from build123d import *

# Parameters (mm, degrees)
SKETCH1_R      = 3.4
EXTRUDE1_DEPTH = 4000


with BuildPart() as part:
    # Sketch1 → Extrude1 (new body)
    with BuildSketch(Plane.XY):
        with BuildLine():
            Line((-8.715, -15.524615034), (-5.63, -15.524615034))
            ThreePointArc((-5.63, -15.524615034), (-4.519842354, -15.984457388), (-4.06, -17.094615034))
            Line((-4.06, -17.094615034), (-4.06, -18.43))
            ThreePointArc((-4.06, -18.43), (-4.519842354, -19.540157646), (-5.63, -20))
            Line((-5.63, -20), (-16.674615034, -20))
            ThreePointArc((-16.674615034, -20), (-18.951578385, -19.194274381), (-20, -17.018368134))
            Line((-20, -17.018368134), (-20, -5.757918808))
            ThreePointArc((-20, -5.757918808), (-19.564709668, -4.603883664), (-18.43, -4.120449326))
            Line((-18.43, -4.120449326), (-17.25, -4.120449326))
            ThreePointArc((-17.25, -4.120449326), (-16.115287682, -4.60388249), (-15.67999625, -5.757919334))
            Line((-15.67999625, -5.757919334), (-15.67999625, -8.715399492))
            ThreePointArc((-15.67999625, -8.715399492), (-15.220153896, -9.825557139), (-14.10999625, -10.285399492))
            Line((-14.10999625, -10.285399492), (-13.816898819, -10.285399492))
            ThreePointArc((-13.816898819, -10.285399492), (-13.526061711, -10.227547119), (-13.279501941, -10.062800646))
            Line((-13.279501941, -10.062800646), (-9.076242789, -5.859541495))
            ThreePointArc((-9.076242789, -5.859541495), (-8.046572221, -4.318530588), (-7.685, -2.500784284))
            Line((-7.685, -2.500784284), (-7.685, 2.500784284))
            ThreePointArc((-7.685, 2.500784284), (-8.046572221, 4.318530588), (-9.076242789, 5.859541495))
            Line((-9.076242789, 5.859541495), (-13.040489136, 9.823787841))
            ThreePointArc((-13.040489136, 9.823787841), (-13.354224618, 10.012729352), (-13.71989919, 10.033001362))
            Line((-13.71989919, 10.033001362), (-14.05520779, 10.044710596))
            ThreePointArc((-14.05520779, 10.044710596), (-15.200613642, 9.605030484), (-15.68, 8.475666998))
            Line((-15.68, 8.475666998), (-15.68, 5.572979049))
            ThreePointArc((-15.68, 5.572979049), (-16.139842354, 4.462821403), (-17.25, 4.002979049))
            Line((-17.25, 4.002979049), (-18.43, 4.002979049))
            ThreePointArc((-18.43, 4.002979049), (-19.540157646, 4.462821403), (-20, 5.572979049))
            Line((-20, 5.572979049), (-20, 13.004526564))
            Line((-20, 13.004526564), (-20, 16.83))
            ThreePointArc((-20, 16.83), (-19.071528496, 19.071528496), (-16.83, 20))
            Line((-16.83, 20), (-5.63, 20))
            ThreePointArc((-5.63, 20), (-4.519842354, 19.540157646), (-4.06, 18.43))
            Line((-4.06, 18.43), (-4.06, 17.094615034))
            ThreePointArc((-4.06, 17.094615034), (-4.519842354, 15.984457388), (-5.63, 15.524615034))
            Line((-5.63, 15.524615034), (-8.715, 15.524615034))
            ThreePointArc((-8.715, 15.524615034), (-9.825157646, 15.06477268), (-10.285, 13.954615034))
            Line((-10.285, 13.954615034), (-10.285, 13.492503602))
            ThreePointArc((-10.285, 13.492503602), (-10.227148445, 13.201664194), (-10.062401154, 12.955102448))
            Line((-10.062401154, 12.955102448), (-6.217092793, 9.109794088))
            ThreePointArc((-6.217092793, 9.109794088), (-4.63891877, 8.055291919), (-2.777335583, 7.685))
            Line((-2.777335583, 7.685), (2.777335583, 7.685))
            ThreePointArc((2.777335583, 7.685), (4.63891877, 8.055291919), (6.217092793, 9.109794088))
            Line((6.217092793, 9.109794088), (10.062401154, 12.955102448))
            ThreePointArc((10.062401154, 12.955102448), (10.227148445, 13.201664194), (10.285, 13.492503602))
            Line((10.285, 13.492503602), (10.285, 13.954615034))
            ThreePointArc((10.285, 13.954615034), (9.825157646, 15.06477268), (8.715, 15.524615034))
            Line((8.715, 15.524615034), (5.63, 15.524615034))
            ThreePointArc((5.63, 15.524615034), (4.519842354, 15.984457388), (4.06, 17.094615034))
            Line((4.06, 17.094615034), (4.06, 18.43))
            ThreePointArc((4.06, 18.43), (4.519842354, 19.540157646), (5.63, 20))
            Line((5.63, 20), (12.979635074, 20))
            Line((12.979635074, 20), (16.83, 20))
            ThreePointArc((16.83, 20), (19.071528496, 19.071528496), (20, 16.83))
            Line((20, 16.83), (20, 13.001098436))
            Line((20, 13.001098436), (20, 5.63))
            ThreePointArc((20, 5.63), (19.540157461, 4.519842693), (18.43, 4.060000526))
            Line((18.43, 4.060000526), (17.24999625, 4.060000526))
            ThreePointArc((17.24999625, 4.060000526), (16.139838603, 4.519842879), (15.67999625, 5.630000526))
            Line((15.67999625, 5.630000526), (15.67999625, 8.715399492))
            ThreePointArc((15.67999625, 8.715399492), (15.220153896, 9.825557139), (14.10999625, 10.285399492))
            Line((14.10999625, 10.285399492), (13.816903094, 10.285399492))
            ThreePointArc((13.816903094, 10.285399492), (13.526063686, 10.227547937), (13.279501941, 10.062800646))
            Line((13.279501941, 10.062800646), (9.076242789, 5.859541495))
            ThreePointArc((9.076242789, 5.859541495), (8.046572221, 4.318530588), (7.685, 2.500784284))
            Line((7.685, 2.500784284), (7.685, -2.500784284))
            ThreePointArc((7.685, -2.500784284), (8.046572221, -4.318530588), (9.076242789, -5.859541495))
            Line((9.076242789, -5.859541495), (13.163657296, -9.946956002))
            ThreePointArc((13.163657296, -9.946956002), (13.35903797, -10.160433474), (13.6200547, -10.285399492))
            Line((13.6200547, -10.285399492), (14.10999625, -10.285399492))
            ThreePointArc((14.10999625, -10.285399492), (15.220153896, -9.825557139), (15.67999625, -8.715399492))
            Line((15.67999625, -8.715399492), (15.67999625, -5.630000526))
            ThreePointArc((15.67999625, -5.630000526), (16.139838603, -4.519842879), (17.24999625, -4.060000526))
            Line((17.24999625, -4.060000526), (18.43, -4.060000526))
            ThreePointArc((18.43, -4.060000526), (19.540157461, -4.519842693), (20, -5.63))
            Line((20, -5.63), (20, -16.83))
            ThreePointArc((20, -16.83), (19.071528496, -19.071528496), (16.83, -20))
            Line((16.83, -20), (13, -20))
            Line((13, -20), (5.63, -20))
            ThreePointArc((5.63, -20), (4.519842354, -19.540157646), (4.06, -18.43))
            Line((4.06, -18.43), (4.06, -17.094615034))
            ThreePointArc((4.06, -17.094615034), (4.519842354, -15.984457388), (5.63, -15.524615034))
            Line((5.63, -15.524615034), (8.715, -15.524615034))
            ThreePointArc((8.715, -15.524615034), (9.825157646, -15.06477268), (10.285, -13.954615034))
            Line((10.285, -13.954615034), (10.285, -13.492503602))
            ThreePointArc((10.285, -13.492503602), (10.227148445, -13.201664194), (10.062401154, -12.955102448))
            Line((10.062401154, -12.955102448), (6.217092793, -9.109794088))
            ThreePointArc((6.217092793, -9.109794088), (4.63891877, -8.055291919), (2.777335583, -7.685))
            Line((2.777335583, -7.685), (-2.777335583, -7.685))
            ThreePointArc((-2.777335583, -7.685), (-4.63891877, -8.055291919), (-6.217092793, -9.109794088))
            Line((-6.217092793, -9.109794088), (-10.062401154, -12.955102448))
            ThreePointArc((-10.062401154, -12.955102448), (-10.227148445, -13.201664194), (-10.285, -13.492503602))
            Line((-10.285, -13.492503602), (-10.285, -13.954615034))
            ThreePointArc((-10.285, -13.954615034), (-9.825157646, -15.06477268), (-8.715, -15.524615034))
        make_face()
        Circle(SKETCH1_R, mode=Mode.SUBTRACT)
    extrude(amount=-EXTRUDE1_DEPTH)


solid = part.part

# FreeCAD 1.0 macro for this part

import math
import FreeCAD as App
import Part
import Sketcher

V = App.Vector
Q = App.Units.Quantity

doc = App.newDocument("Part")
params = doc.addObject("Spreadsheet::Sheet", "Params")
for row, (alias, value) in enumerate([
    ("sketch1_diameter", "6.8 mm"),
    ("sketch1_radius", "1.57 mm"),
    ("sketch1_radius2", "0.76 mm"),
    ("sketch1_radius3", "3.17 mm"),
    ("sketch1_radius4", "4.75 mm"),
    ("pad1_length", "4000 mm"),
], start=1):
    params.set(f"A{row}", alias)
    params.set(f"B{row}", "=" + value)
    params.setAlias(f"B{row}", alias)

body = doc.addObject("PartDesign::Body", "Body")

# Sketch on XY plane
sketch1 = body.newObject("Sketcher::SketchObject", "Sketch")
sketch1.AttachmentSupport = (doc.getObject("XY_Plane"), [""])
sketch1.MapMode = "FlatFace"
sketch1.addGeometry(Part.LineSegment(V(-5.63, -15.524615, 0), V(-8.715, -15.524615, 0)), False)
sketch1.addGeometry(Part.ArcOfCircle(Part.Circle(V(-8.715, -13.954615, 0), V(0, 0, 1), 1.57), math.radians(-180), math.radians(-90)), False)
sketch1.addGeometry(Part.LineSegment(V(-10.285, -13.954615, 0), V(-10.285, -13.492504, 0)), False)
sketch1.addGeometry(Part.ArcOfCircle(Part.Circle(V(-9.525, -13.492504, 0), V(0, 0, 1), 0.76), math.radians(135), math.radians(180)), False)
sketch1.addGeometry(Part.LineSegment(V(-10.062401, -12.955102, 0), V(-6.217093, -9.109794, 0)), False)
sketch1.addGeometry(Part.ArcOfCircle(Part.Circle(V(-2.777336, -12.549551, 0), V(0, 0, 1), 4.864551), math.radians(90), math.radians(135)), False)
sketch1.addGeometry(Part.LineSegment(V(-2.777336, -7.685, 0), V(2.777336, -7.685, 0)), False)
sketch1.addGeometry(Part.ArcOfCircle(Part.Circle(V(2.777336, -12.549551, 0), V(0, 0, 1), 4.864551), math.radians(45), math.radians(90)), False)
sketch1.addGeometry(Part.LineSegment(V(6.217093, -9.109794, 0), V(10.062401, -12.955102, 0)), False)
sketch1.addGeometry(Part.ArcOfCircle(Part.Circle(V(9.525, -13.492504, 0), V(0, 0, 1), 0.76), math.radians(0), math.radians(45)), False)
sketch1.addGeometry(Part.LineSegment(V(10.285, -13.492504, 0), V(10.285, -13.954615, 0)), False)
sketch1.addGeometry(Part.ArcOfCircle(Part.Circle(V(8.715, -13.954615, 0), V(0, 0, 1), 1.57), math.radians(-90), math.radians(0)), False)
sketch1.addGeometry(Part.LineSegment(V(8.715, -15.524615, 0), V(5.63, -15.524615, 0)), False)
sketch1.addGeometry(Part.ArcOfCircle(Part.Circle(V(5.63, -17.094615, 0), V(0, 0, 1), 1.57), math.radians(90), math.radians(180)), False)
sketch1.addGeometry(Part.LineSegment(V(4.06, -17.094615, 0), V(4.06, -18.43, 0)), False)
sketch1.addGeometry(Part.ArcOfCircle(Part.Circle(V(5.63, -18.43, 0), V(0, 0, 1), 1.57), math.radians(-180), math.radians(-90)), False)
sketch1.addGeometry(Part.LineSegment(V(5.63, -20, 0), V(16.83, -20, 0)), False)
sketch1.addGeometry(Part.ArcOfCircle(Part.Circle(V(16.83, -16.83, 0), V(0, 0, 1), 3.17), math.radians(-90), math.radians(0)), False)
sketch1.addGeometry(Part.LineSegment(V(20, -16.83, 0), V(20, -5.63, 0)), False)
sketch1.addGeometry(Part.ArcOfCircle(Part.Circle(V(18.43, -5.630001, 0), V(0, 0, 1), 1.57), math.radians(0.000019), math.radians(90)), False)
sketch1.addGeometry(Part.LineSegment(V(18.43, -4.060001, 0), V(17.249996, -4.060001, 0)), False)
sketch1.addGeometry(Part.ArcOfCircle(Part.Circle(V(17.249996, -5.630001, 0), V(0, 0, 1), 1.57), math.radians(90), math.radians(180)), False)
sketch1.addGeometry(Part.LineSegment(V(15.679996, -5.630001, 0), V(15.679996, -8.715399, 0)), False)
sketch1.addGeometry(Part.ArcOfCircle(Part.Circle(V(14.109996, -8.715399, 0), V(0, 0, 1), 1.57), math.radians(-90), math.radians(0)), False)
sketch1.addGeometry(Part.LineSegment(V(14.109996, -10.285399, 0), V(13.620055, -10.285399, 0)), False)
sketch1.addGeometry(Part.ArcOfCircle(Part.Circle(V(13.811732, -9.549968, 0), V(0, 0, 1), 0.76), math.radians(-148.509776), math.radians(-104.608114)), False)
sketch1.addGeometry(Part.LineSegment(V(13.163657, -9.946956, 0), V(9.076243, -5.859541, 0)), False)
sketch1.addGeometry(Part.ArcOfCircle(Part.Circle(V(12.435, -2.500784, 0), V(0, 0, 1), 4.75), math.radians(-180), math.radians(-135)), False)
sketch1.addGeometry(Part.LineSegment(V(7.685, -2.500784, 0), V(7.685, 2.500784, 0)), False)
sketch1.addGeometry(Part.ArcOfCircle(Part.Circle(V(12.435, 2.500784, 0), V(0, 0, 1), 4.75), math.radians(135), math.radians(180)), False)
sketch1.addGeometry(Part.LineSegment(V(9.076243, 5.859541, 0), V(13.279502, 10.062801, 0)), False)
sketch1.addGeometry(Part.ArcOfCircle(Part.Circle(V(13.816903, 9.525399, 0), V(0, 0, 1), 0.76), math.radians(90), math.radians(135)), False)
sketch1.addGeometry(Part.LineSegment(V(13.816903, 10.285399, 0), V(14.109996, 10.285399, 0)), False)
sketch1.addGeometry(Part.ArcOfCircle(Part.Circle(V(14.109996, 8.715399, 0), V(0, 0, 1), 1.57), math.radians(0), math.radians(90)), False)
sketch1.addGeometry(Part.LineSegment(V(15.679996, 8.715399, 0), V(15.679996, 5.630001, 0)), False)
sketch1.addGeometry(Part.ArcOfCircle(Part.Circle(V(17.249996, 5.630001, 0), V(0, 0, 1), 1.57), math.radians(180), math.radians(270)), False)
sketch1.addGeometry(Part.LineSegment(V(17.249996, 4.060001, 0), V(18.43, 4.060001, 0)), False)
sketch1.addGeometry(Part.ArcOfCircle(Part.Circle(V(18.43, 5.630001, 0), V(0, 0, 1), 1.57), math.radians(-90), math.radians(-0.000019)), False)
sketch1.addGeometry(Part.LineSegment(V(20, 5.63, 0), V(20, 16.83, 0)), False)
sketch1.addGeometry(Part.ArcOfCircle(Part.Circle(V(16.83, 16.83, 0), V(0, 0, 1), 3.17), math.radians(0), math.radians(90)), False)
sketch1.addGeometry(Part.LineSegment(V(16.83, 20, 0), V(5.63, 20, 0)), False)
sketch1.addGeometry(Part.ArcOfCircle(Part.Circle(V(5.63, 18.43, 0), V(0, 0, 1), 1.57), math.radians(90), math.radians(180)), False)
sketch1.addGeometry(Part.LineSegment(V(4.06, 18.43, 0), V(4.06, 17.094615, 0)), False)
sketch1.addGeometry(Part.ArcOfCircle(Part.Circle(V(5.63, 17.094615, 0), V(0, 0, 1), 1.57), math.radians(-180), math.radians(-90)), False)
sketch1.addGeometry(Part.LineSegment(V(5.63, 15.524615, 0), V(8.715, 15.524615, 0)), False)
sketch1.addGeometry(Part.ArcOfCircle(Part.Circle(V(8.715, 13.954615, 0), V(0, 0, 1), 1.57), math.radians(0), math.radians(90)), False)
sketch1.addGeometry(Part.LineSegment(V(10.285, 13.954615, 0), V(10.285, 13.492504, 0)), False)
sketch1.addGeometry(Part.ArcOfCircle(Part.Circle(V(9.525, 13.492504, 0), V(0, 0, 1), 0.76), math.radians(-45), math.radians(0)), False)
sketch1.addGeometry(Part.LineSegment(V(10.062401, 12.955102, 0), V(6.217093, 9.109794, 0)), False)
sketch1.addGeometry(Part.ArcOfCircle(Part.Circle(V(2.777336, 12.549551, 0), V(0, 0, 1), 4.864551), math.radians(-90), math.radians(-45)), False)
sketch1.addGeometry(Part.LineSegment(V(2.777336, 7.685, 0), V(-2.777336, 7.685, 0)), False)
sketch1.addGeometry(Part.ArcOfCircle(Part.Circle(V(-2.777336, 12.549551, 0), V(0, 0, 1), 4.864551), math.radians(-135), math.radians(-90)), False)
sketch1.addGeometry(Part.LineSegment(V(-6.217093, 9.109794, 0), V(-10.062401, 12.955102, 0)), False)
sketch1.addGeometry(Part.ArcOfCircle(Part.Circle(V(-9.525, 13.492504, 0), V(0, 0, 1), 0.76), math.radians(180), math.radians(225)), False)
sketch1.addGeometry(Part.LineSegment(V(-10.285, 13.492504, 0), V(-10.285, 13.954615, 0)), False)
sketch1.addGeometry(Part.ArcOfCircle(Part.Circle(V(-8.715, 13.954615, 0), V(0, 0, 1), 1.57), math.radians(90), math.radians(180)), False)
sketch1.addGeometry(Part.LineSegment(V(-8.715, 15.524615, 0), V(-5.63, 15.524615, 0)), False)
sketch1.addGeometry(Part.ArcOfCircle(Part.Circle(V(-5.63, 17.094615, 0), V(0, 0, 1), 1.57), math.radians(-90), math.radians(0)), False)
sketch1.addGeometry(Part.LineSegment(V(-4.06, 17.094615, 0), V(-4.06, 18.43, 0)), False)
sketch1.addGeometry(Part.ArcOfCircle(Part.Circle(V(-5.63, 18.43, 0), V(0, 0, 1), 1.57), math.radians(0), math.radians(90)), False)
sketch1.addGeometry(Part.LineSegment(V(-5.63, 20, 0), V(-16.83, 20, 0)), False)
sketch1.addGeometry(Part.ArcOfCircle(Part.Circle(V(-16.83, 16.83, 0), V(0, 0, 1), 3.17), math.radians(90), math.radians(180)), False)
sketch1.addGeometry(Part.LineSegment(V(-20, 16.83, 0), V(-20, 5.572979, 0)), False)
sketch1.addGeometry(Part.ArcOfCircle(Part.Circle(V(-18.43, 5.572979, 0), V(0, 0, 1), 1.57), math.radians(-180), math.radians(-90)), False)
sketch1.addGeometry(Part.LineSegment(V(-18.43, 4.002979, 0), V(-17.25, 4.002979, 0)), False)
sketch1.addGeometry(Part.ArcOfCircle(Part.Circle(V(-17.25, 5.572979, 0), V(0, 0, 1), 1.57), math.radians(-90), math.radians(0)), False)
sketch1.addGeometry(Part.LineSegment(V(-15.68, 5.572979, 0), V(-15.68, 8.475667, 0)), False)
sketch1.addGeometry(Part.ArcOfCircle(Part.Circle(V(-14.11, 8.475667, 0), V(0, 0, 1), 1.57), math.radians(88), math.radians(180)), False)
sketch1.addGeometry(Part.LineSegment(V(-14.055208, 10.044711, 0), V(-13.719899, 10.033001, 0)), False)
sketch1.addGeometry(Part.ArcOfCircle(Part.Circle(V(-13.57789, 9.286387, 0), V(0, 0, 1), 0.76), math.radians(45), math.radians(100.769233)), False)
sketch1.addGeometry(Part.LineSegment(V(-13.040489, 9.823788, 0), V(-9.076243, 5.859541, 0)), False)
sketch1.addGeometry(Part.ArcOfCircle(Part.Circle(V(-12.435, 2.500784, 0), V(0, 0, 1), 4.75), math.radians(0), math.radians(45)), False)
sketch1.addGeometry(Part.LineSegment(V(-7.685, 2.500784, 0), V(-7.685, -2.500784, 0)), False)
sketch1.addGeometry(Part.ArcOfCircle(Part.Circle(V(-12.435, -2.500784, 0), V(0, 0, 1), 4.75), math.radians(-45), math.radians(0)), False)
sketch1.addGeometry(Part.LineSegment(V(-9.076243, -5.859541, 0), V(-13.279502, -10.062801, 0)), False)
sketch1.addGeometry(Part.ArcOfCircle(Part.Circle(V(-13.816903, -9.525399, 0), V(0, 0, 1), 0.76), math.radians(-89.999678), math.radians(-45)), False)
sketch1.addGeometry(Part.LineSegment(V(-13.816899, -10.285399, 0), V(-14.109996, -10.285399, 0)), False)
sketch1.addGeometry(Part.ArcOfCircle(Part.Circle(V(-14.109996, -8.715399, 0), V(0, 0, 1), 1.57), math.radians(180), math.radians(270)), False)
sketch1.addGeometry(Part.LineSegment(V(-15.679996, -8.715399, 0), V(-15.679996, -5.757919, 0)), False)
sketch1.addGeometry(Part.ArcOfCircle(Part.Circle(V(-17.248546, -5.690449, 0), V(0, 0, 1), 1.57), math.radians(-2.463042), math.radians(90.05307)), False)
sketch1.addGeometry(Part.LineSegment(V(-17.25, -4.120449, 0), V(-18.43, -4.120449, 0)), False)
sketch1.addGeometry(Part.ArcOfCircle(Part.Circle(V(-18.43145, -5.690449, 0), V(0, 0, 1), 1.57), math.radians(89.947068), math.radians(182.463023)), False)
sketch1.addGeometry(Part.LineSegment(V(-20, -5.757919, 0), V(-20, -17.018368, 0)), False)
sketch1.addGeometry(Part.ArcOfCircle(Part.Circle(V(-16.835361, -16.834078, 0), V(0, 0, 1), 3.17), math.radians(-176.667196), math.radians(-87.093362)), False)
sketch1.addGeometry(Part.LineSegment(V(-16.674615, -20, 0), V(-5.63, -20, 0)), False)
sketch1.addGeometry(Part.ArcOfCircle(Part.Circle(V(-5.63, -18.43, 0), V(0, 0, 1), 1.57), math.radians(-90), math.radians(0)), False)
sketch1.addGeometry(Part.LineSegment(V(-4.06, -18.43, 0), V(-4.06, -17.094615, 0)), False)
sketch1.addGeometry(Part.ArcOfCircle(Part.Circle(V(-5.63, -17.094615, 0), V(0, 0, 1), 1.57), math.radians(0), math.radians(90)), False)
sketch1.addGeometry(Part.Circle(V(0, 0, 0), V(0, 0, 1), 3.4), False)
sketch1.addConstraint(Sketcher.Constraint("Tangent", 0, 2, 1, 2))
sketch1.addConstraint(Sketcher.Constraint("Tangent", 1, 1, 2, 1))
sketch1.addConstraint(Sketcher.Constraint("Tangent", 2, 2, 3, 2))
sketch1.addConstraint(Sketcher.Constraint("Tangent", 3, 1, 4, 1))
sketch1.addConstraint(Sketcher.Constraint("Tangent", 4, 2, 5, 2))
sketch1.addConstraint(Sketcher.Constraint("Tangent", 5, 1, 6, 1))
sketch1.addConstraint(Sketcher.Constraint("Tangent", 6, 2, 7, 2))
sketch1.addConstraint(Sketcher.Constraint("Tangent", 7, 1, 8, 1))
sketch1.addConstraint(Sketcher.Constraint("Tangent", 8, 2, 9, 2))
sketch1.addConstraint(Sketcher.Constraint("Tangent", 9, 1, 10, 1))
sketch1.addConstraint(Sketcher.Constraint("Tangent", 10, 2, 11, 2))
sketch1.addConstraint(Sketcher.Constraint("Tangent", 11, 1, 12, 1))
sketch1.addConstraint(Sketcher.Constraint("Tangent", 12, 2, 13, 1))
sketch1.addConstraint(Sketcher.Constraint("Tangent", 13, 2, 14, 1))
sketch1.addConstraint(Sketcher.Constraint("Tangent", 14, 2, 15, 1))
sketch1.addConstraint(Sketcher.Constraint("Tangent", 15, 2, 16, 1))
sketch1.addConstraint(Sketcher.Constraint("Tangent", 16, 2, 17, 1))
sketch1.addConstraint(Sketcher.Constraint("Tangent", 17, 2, 18, 1))
sketch1.addConstraint(Sketcher.Constraint("Tangent", 18, 2, 19, 1))
sketch1.addConstraint(Sketcher.Constraint("Tangent", 19, 2, 20, 1))
sketch1.addConstraint(Sketcher.Constraint("Tangent", 20, 2, 21, 1))
sketch1.addConstraint(Sketcher.Constraint("Tangent", 21, 2, 22, 1))
sketch1.addConstraint(Sketcher.Constraint("Tangent", 22, 2, 23, 2))
sketch1.addConstraint(Sketcher.Constraint("Tangent", 23, 1, 24, 1))
sketch1.addConstraint(Sketcher.Constraint("Coincident", 24, 2, 25, 2))
sketch1.addConstraint(Sketcher.Constraint("Coincident", 25, 1, 26, 1))
sketch1.addConstraint(Sketcher.Constraint("Tangent", 26, 2, 27, 2))
sketch1.addConstraint(Sketcher.Constraint("Tangent", 27, 1, 28, 1))
sketch1.addConstraint(Sketcher.Constraint("Tangent", 28, 2, 29, 2))
sketch1.addConstraint(Sketcher.Constraint("Tangent", 29, 1, 30, 1))
sketch1.addConstraint(Sketcher.Constraint("Tangent", 30, 2, 31, 2))
sketch1.addConstraint(Sketcher.Constraint("Tangent", 31, 1, 32, 1))
sketch1.addConstraint(Sketcher.Constraint("Tangent", 32, 2, 33, 2))
sketch1.addConstraint(Sketcher.Constraint("Tangent", 33, 1, 34, 1))
sketch1.addConstraint(Sketcher.Constraint("Tangent", 34, 2, 35, 1))
sketch1.addConstraint(Sketcher.Constraint("Tangent", 35, 2, 36, 1))
sketch1.addConstraint(Sketcher.Constraint("Tangent", 36, 2, 37, 1))
sketch1.addConstraint(Sketcher.Constraint("Tangent", 37, 2, 38, 1))
sketch1.addConstraint(Sketcher.Constraint("Tangent", 38, 2, 39, 1))
sketch1.addConstraint(Sketcher.Constraint("Tangent", 39, 2, 40, 1))
sketch1.addConstraint(Sketcher.Constraint("Tangent", 40, 2, 41, 1))
sketch1.addConstraint(Sketcher.Constraint("Tangent", 41, 2, 42, 1))
sketch1.addConstraint(Sketcher.Constraint("Tangent", 42, 2, 43, 1))
sketch1.addConstraint(Sketcher.Constraint("Tangent", 43, 2, 44, 1))
sketch1.addConstraint(Sketcher.Constraint("Tangent", 44, 2, 45, 2))
sketch1.addConstraint(Sketcher.Constraint("Tangent", 45, 1, 46, 1))
sketch1.addConstraint(Sketcher.Constraint("Tangent", 46, 2, 47, 2))
sketch1.addConstraint(Sketcher.Constraint("Tangent", 47, 1, 48, 1))
sketch1.addConstraint(Sketcher.Constraint("Tangent", 48, 2, 49, 2))
sketch1.addConstraint(Sketcher.Constraint("Tangent", 49, 1, 50, 1))
sketch1.addConstraint(Sketcher.Constraint("Tangent", 50, 2, 51, 2))
sketch1.addConstraint(Sketcher.Constraint("Tangent", 51, 1, 52, 1))
sketch1.addConstraint(Sketcher.Constraint("Tangent", 52, 2, 53, 2))
sketch1.addConstraint(Sketcher.Constraint("Tangent", 53, 1, 54, 1))
sketch1.addConstraint(Sketcher.Constraint("Tangent", 54, 2, 55, 2))
sketch1.addConstraint(Sketcher.Constraint("Tangent", 55, 1, 56, 1))
sketch1.addConstraint(Sketcher.Constraint("Tangent", 56, 2, 57, 1))
sketch1.addConstraint(Sketcher.Constraint("Tangent", 57, 2, 58, 1))
sketch1.addConstraint(Sketcher.Constraint("Tangent", 58, 2, 59, 1))
sketch1.addConstraint(Sketcher.Constraint("Tangent", 59, 2, 60, 1))
sketch1.addConstraint(Sketcher.Constraint("Tangent", 60, 2, 61, 1))
sketch1.addConstraint(Sketcher.Constraint("Tangent", 61, 2, 62, 1))
sketch1.addConstraint(Sketcher.Constraint("Tangent", 62, 2, 63, 1))
sketch1.addConstraint(Sketcher.Constraint("Tangent", 63, 2, 64, 1))
sketch1.addConstraint(Sketcher.Constraint("Tangent", 64, 2, 65, 1))
sketch1.addConstraint(Sketcher.Constraint("Tangent", 65, 2, 66, 1))
sketch1.addConstraint(Sketcher.Constraint("Tangent", 66, 2, 67, 2))
sketch1.addConstraint(Sketcher.Constraint("Tangent", 67, 1, 68, 1))
sketch1.addConstraint(Sketcher.Constraint("Coincident", 68, 2, 69, 2))
sketch1.addConstraint(Sketcher.Constraint("Tangent", 69, 1, 70, 1))
sketch1.addConstraint(Sketcher.Constraint("Tangent", 70, 2, 71, 2))
sketch1.addConstraint(Sketcher.Constraint("Tangent", 71, 1, 72, 1))
sketch1.addConstraint(Sketcher.Constraint("Tangent", 72, 2, 73, 2))
sketch1.addConstraint(Sketcher.Constraint("Tangent", 73, 1, 74, 1))
sketch1.addConstraint(Sketcher.Constraint("Tangent", 74, 2, 75, 2))
sketch1.addConstraint(Sketcher.Constraint("Coincident", 75, 1, 76, 1))
sketch1.addConstraint(Sketcher.Constraint("Tangent", 76, 2, 77, 2))
sketch1.addConstraint(Sketcher.Constraint("Tangent", 77, 1, 78, 1))
sketch1.addConstraint(Sketcher.Constraint("Coincident", 78, 2, 79, 1))
sketch1.addConstraint(Sketcher.Constraint("Coincident", 79, 2, 80, 1))
sketch1.addConstraint(Sketcher.Constraint("Coincident", 80, 2, 81, 1))
sketch1.addConstraint(Sketcher.Constraint("Coincident", 81, 2, 82, 1))
sketch1.addConstraint(Sketcher.Constraint("Coincident", 82, 2, 83, 1))
sketch1.addConstraint(Sketcher.Constraint("Coincident", 83, 2, 84, 1))
sketch1.addConstraint(Sketcher.Constraint("Tangent", 84, 2, 85, 1))
sketch1.addConstraint(Sketcher.Constraint("Tangent", 85, 2, 86, 1))
sketch1.addConstraint(Sketcher.Constraint("Tangent", 86, 2, 87, 1))
sketch1.addConstraint(Sketcher.Constraint("Tangent", 87, 2, 0, 1))
sketch1.addConstraint(Sketcher.Constraint("Horizontal", 0))
sketch1.addConstraint(Sketcher.Constraint("Vertical", 2))
sketch1.addConstraint(Sketcher.Constraint("Horizontal", 6))
sketch1.addConstraint(Sketcher.Constraint("Vertical", 10))
sketch1.addConstraint(Sketcher.Constraint("Horizontal", 12))
sketch1.addConstraint(Sketcher.Constraint("Vertical", 14))
sketch1.addConstraint(Sketcher.Constraint("Horizontal", 16))
sketch1.addConstraint(Sketcher.Constraint("Vertical", 18))
sketch1.addConstraint(Sketcher.Constraint("Horizontal", 20))
sketch1.addConstraint(Sketcher.Constraint("Vertical", 22))
sketch1.addConstraint(Sketcher.Constraint("Horizontal", 24))
sketch1.addConstraint(Sketcher.Constraint("Vertical", 28))
sketch1.addConstraint(Sketcher.Constraint("Horizontal", 32))
sketch1.addConstraint(Sketcher.Constraint("Vertical", 34))
sketch1.addConstraint(Sketcher.Constraint("Horizontal", 36))
sketch1.addConstraint(Sketcher.Constraint("Vertical", 38))
sketch1.addConstraint(Sketcher.Constraint("Horizontal", 40))
sketch1.addConstraint(Sketcher.Constraint("Vertical", 42))
sketch1.addConstraint(Sketcher.Constraint("Horizontal", 44))
sketch1.addConstraint(Sketcher.Constraint("Vertical", 46))
sketch1.addConstraint(Sketcher.Constraint("Horizontal", 50))
sketch1.addConstraint(Sketcher.Constraint("Vertical", 54))
sketch1.addConstraint(Sketcher.Constraint("Horizontal", 56))
sketch1.addConstraint(Sketcher.Constraint("Vertical", 58))
sketch1.addConstraint(Sketcher.Constraint("Horizontal", 60))
sketch1.addConstraint(Sketcher.Constraint("Vertical", 62))
sketch1.addConstraint(Sketcher.Constraint("Horizontal", 64))
sketch1.addConstraint(Sketcher.Constraint("Vertical", 66))
sketch1.addConstraint(Sketcher.Constraint("Vertical", 72))
sketch1.addConstraint(Sketcher.Constraint("Horizontal", 76))
sketch1.addConstraint(Sketcher.Constraint("Vertical", 78))
sketch1.addConstraint(Sketcher.Constraint("Horizontal", 80))
sketch1.addConstraint(Sketcher.Constraint("Vertical", 82))
sketch1.addConstraint(Sketcher.Constraint("Horizontal", 84))
sketch1.addConstraint(Sketcher.Constraint("Vertical", 86))
sketch1.addConstraint(Sketcher.Constraint("Coincident", 88, 3, -1, 1))
sketch1.addConstraint(Sketcher.Constraint("Equal", 5, 7))
sketch1.addConstraint(Sketcher.Constraint("Equal", 3, 9))
sketch1.addConstraint(Sketcher.Constraint("Equal", 1, 11))
sketch1.addConstraint(Sketcher.Constraint("Equal", 11, 13))
sketch1.addConstraint(Sketcher.Constraint("Equal", 13, 15))
sketch1.addConstraint(Sketcher.Constraint("Equal", 15, 19))
sketch1.addConstraint(Sketcher.Constraint("Equal", 19, 21))
sketch1.addConstraint(Sketcher.Constraint("Equal", 21, 23))
sketch1.addConstraint(Sketcher.Constraint("Equal", 9, 25))
sketch1.addConstraint(Sketcher.Constraint("Equal", 27, 29))
sketch1.addConstraint(Sketcher.Constraint("Equal", 25, 31))
sketch1.addConstraint(Sketcher.Constraint("Equal", 23, 33))
sketch1.addConstraint(Sketcher.Constraint("Equal", 33, 35))
sketch1.addConstraint(Sketcher.Constraint("Equal", 35, 37))
sketch1.addConstraint(Sketcher.Constraint("Equal", 17, 39))
sketch1.addConstraint(Sketcher.Constraint("Equal", 37, 41))
sketch1.addConstraint(Sketcher.Constraint("Equal", 41, 43))
sketch1.addConstraint(Sketcher.Constraint("Equal", 43, 45))
sketch1.addConstraint(Sketcher.Constraint("Equal", 31, 47))
sketch1.addConstraint(Sketcher.Constraint("Equal", 7, 49))
sketch1.addConstraint(Sketcher.Constraint("Equal", 49, 51))
sketch1.addConstraint(Sketcher.Constraint("Equal", 47, 53))
sketch1.addConstraint(Sketcher.Constraint("Equal", 45, 55))
sketch1.addConstraint(Sketcher.Constraint("Equal", 55, 57))
sketch1.addConstraint(Sketcher.Constraint("Equal", 57, 59))
sketch1.addConstraint(Sketcher.Constraint("Equal", 39, 61))
sketch1.addConstraint(Sketcher.Constraint("Equal", 59, 63))
sketch1.addConstraint(Sketcher.Constraint("Equal", 63, 65))
sketch1.addConstraint(Sketcher.Constraint("Equal", 65, 67))
sketch1.addConstraint(Sketcher.Constraint("Equal", 53, 69))
sketch1.addConstraint(Sketcher.Constraint("Equal", 29, 71))
sketch1.addConstraint(Sketcher.Constraint("Equal", 71, 73))
sketch1.addConstraint(Sketcher.Constraint("Equal", 69, 75))
sketch1.addConstraint(Sketcher.Constraint("Equal", 67, 77))
sketch1.addConstraint(Sketcher.Constraint("Equal", 77, 79))
sketch1.addConstraint(Sketcher.Constraint("Equal", 79, 81))
sketch1.addConstraint(Sketcher.Constraint("Equal", 61, 83))
sketch1.addConstraint(Sketcher.Constraint("Equal", 81, 85))
sketch1.addConstraint(Sketcher.Constraint("Equal", 85, 87))
sketch1.addConstraint(Sketcher.Constraint("Symmetric", 1, 3, 45, 3, -1, 1))
sketch1.addConstraint(Sketcher.Constraint("Symmetric", 5, 3, 49, 3, -1, 1))
sketch1.addConstraint(Sketcher.Constraint("Symmetric", 9, 3, 53, 3, -1, 1))
sketch1.addConstraint(Sketcher.Constraint("Symmetric", 13, 3, 57, 3, -1, 1))
sketch1.addConstraint(Sketcher.Constraint("Symmetric", 17, 3, 61, 3, -1, 1))
sketch1.addConstraint(Sketcher.Constraint("Symmetric", 27, 3, 71, 3, -1, 1))
sketch1.addConstraint(Sketcher.Constraint("Symmetric", 31, 3, 75, 3, -1, 1))
sketch1.addConstraint(Sketcher.Constraint("Symmetric", 41, 3, 85, 3, -1, 1))
sketch1.addConstraint(Sketcher.Constraint("Symmetric", 3, 3, 9, 3, -2))
sketch1.addConstraint(Sketcher.Constraint("Symmetric", 43, 3, 57, 3, -2))
sketch1.addConstraint(Sketcher.Constraint("Symmetric", 39, 3, 61, 3, -2))
sketch1.addConstraint(Sketcher.Constraint("Symmetric", 23, 3, 77, 3, -2))
sketch1.addConstraint(Sketcher.Constraint("Symmetric", 48, 2, 51, 1, -2))
sketch1.addConstraint(Sketcher.Constraint("Symmetric", 29, 1, 70, 2, -2))
sketch1.addConstraint(Sketcher.Constraint("Symmetric", 26, 2, 73, 1, -2))
sketch1.addConstraint(Sketcher.Constraint("Symmetric", 21, 3, 35, 3, -1))
sketch1.addConstraint(Sketcher.Constraint("Perpendicular", 4, 8))
sketch1.addConstraint(Sketcher.Constraint("Parallel", 8, 26))
sketch1.addConstraint(Sketcher.Constraint("Perpendicular", 26, 30))
sketch1.addConstraint(Sketcher.Constraint("Horizontal", 78, 2, 81, 2))
sketch1.addConstraint(Sketcher.Constraint("Vertical", 64, 2, 79, 2))
sketch1.addConstraint(Sketcher.Constraint("Vertical", 63, 2, 80, 2))
sketch1.addConstraint(Sketcher.Constraint("Vertical", 62, 2, 81, 2))
sketch1.addConstraint(Sketcher.Constraint("Equal", 60, 18))
sketch1.addConstraint(Sketcher.Constraint("Diameter", 88, 6.8))
sketch1.addConstraint(Sketcher.Constraint("Angle", 68, Q("-2 deg")))
sketch1.addConstraint(Sketcher.Constraint("Radius", 1, 1.57))
sketch1.addConstraint(Sketcher.Constraint("Radius", 3, 0.76))
sketch1.addConstraint(Sketcher.Constraint("Radius", 17, 3.17))
sketch1.addConstraint(Sketcher.Constraint("Radius", 27, 4.75))
sketch1.addConstraint(Sketcher.Constraint("DistanceX", 16, 1, 16, 2, 11.2))
sketch1.addConstraint(Sketcher.Constraint("DistanceY", 15, 2, -1, 1, 20.0))
sketch1.addConstraint(Sketcher.Constraint("DistanceX", -1, 1, 17, 2, 20.0))
sketch1.addConstraint(Sketcher.Constraint("DistanceX", 64, 1, 64, 2, 1.18))
sketch1.addConstraint(Sketcher.Constraint("DistanceX", 0, 2, 0, 1, 3.085))
sketch1.addConstraint(Sketcher.Constraint("Radius", 5, 4.864551))
sketch1.addConstraint(Sketcher.Constraint("DistanceY", 22, 2, 22, 1, 3.085399))
sketch1.addConstraint(Sketcher.Constraint("DistanceX", -1, 1, 27, 3, 12.435))
sketch1.addConstraint(Sketcher.Constraint("DistanceY", 5, 1, -1, 1, 7.685))
sketch1.addConstraint(Sketcher.Constraint("DistanceY", -1, 1, 68, 2, 10.033001))
sketch1.addConstraint(Sketcher.Constraint("DistanceX", 6, 1, 6, 2, 5.554671))
sketch1.addConstraint(Sketcher.Constraint("DistanceX", 24, 2, 24, 1, 0.489942))
sketch1.addConstraint(Sketcher.Constraint("DistanceY", 2, 1, 2, 2, 0.462111))
sketch1.addConstraint(Sketcher.Constraint("DistanceY", 28, 1, 28, 2, 5.001569))
sketch1.addConstraint(Sketcher.Constraint("DistanceY", 62, 2, 62, 1, 11.257021))
sketch1.addConstraint(Sketcher.Constraint("DistanceY", 78, 1, 78, 2, 2.95748))
sketch1.addConstraint(Sketcher.Constraint("DistanceY", 82, 2, 82, 1, 11.260449))
sketch1.addConstraint(Sketcher.Constraint("DistanceX", 68, 2, -1, 1, 13.719899))
sketch1.addConstraint(Sketcher.Constraint("DistanceX", 75, 1, -1, 1, 13.816899))
sketch1.addConstraint(Sketcher.Constraint("DistanceX", 20, 2, 20, 1, 1.180004))
sketch1.addConstraint(Sketcher.Constraint("DistanceX", 84, 1, 84, 2, 11.044615))
sketch1.addConstraint(Sketcher.Constraint("DistanceX", -1, 1, 25, 3, 13.811732))
sketch1.addConstraint(Sketcher.Constraint("DistanceY", 79, 3, -1, 1, 5.690449))
sketch1.setExpression("Constraints[187]", "Params.sketch1_diameter")
sketch1.setExpression("Constraints[189]", "Params.sketch1_radius")
sketch1.setExpression("Constraints[190]", "Params.sketch1_radius2")
sketch1.setExpression("Constraints[191]", "Params.sketch1_radius3")
sketch1.setExpression("Constraints[192]", "Params.sketch1_radius4")
pad1 = body.newObject("PartDesign::Pad", "Pad")
pad1.Profile = sketch1
pad1.setExpression("Length", "Params.pad1_length")
pad1.Reversed = True

doc.recompute()
